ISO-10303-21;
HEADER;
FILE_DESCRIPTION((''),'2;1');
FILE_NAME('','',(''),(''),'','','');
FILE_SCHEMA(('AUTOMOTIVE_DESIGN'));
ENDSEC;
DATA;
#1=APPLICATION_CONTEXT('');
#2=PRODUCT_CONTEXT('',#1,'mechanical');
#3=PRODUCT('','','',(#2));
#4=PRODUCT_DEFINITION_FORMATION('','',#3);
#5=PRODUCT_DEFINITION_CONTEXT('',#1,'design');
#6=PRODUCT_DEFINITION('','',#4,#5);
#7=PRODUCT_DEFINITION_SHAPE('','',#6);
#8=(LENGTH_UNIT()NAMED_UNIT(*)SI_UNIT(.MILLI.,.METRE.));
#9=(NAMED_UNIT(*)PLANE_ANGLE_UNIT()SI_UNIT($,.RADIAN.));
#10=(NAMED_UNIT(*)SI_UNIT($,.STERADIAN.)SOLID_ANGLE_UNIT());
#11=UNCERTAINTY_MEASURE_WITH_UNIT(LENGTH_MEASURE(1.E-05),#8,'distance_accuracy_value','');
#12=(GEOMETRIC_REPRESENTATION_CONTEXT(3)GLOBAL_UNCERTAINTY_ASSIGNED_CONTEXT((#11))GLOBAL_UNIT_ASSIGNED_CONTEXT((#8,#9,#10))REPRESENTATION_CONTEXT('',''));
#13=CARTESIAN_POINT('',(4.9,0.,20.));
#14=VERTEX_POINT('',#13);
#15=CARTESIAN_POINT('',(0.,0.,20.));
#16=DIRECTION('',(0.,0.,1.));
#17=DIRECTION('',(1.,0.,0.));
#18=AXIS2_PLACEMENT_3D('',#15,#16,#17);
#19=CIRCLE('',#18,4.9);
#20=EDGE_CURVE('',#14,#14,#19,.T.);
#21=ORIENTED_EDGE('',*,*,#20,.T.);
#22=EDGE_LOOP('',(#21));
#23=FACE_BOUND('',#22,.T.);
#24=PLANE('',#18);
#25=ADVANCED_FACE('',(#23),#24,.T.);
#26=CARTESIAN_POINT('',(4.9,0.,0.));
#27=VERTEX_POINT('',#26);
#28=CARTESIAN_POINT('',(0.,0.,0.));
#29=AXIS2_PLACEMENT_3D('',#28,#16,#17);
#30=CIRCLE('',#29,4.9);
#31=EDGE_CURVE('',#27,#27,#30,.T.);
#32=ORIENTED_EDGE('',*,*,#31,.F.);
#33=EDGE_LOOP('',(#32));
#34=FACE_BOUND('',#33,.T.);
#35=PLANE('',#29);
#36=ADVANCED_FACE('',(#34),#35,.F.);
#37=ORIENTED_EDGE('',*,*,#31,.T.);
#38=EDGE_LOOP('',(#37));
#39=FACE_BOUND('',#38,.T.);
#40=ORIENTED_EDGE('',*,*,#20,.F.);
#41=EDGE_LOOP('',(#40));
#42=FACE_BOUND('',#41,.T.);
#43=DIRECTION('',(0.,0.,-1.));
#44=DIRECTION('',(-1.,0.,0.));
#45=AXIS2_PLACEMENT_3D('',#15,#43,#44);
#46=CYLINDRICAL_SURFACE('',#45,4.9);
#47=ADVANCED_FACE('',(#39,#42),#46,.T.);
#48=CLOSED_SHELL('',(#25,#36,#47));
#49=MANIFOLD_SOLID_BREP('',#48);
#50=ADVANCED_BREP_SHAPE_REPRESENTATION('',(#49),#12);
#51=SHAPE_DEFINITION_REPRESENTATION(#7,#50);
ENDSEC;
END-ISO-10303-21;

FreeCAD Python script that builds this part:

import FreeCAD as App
import Part
import Sketcher

doc = App.newDocument("Part")
params = doc.addObject("Spreadsheet::Sheet", "Params")
for row, (alias, value) in enumerate([
    ("sketch1_diameter", "9.8 mm"),
    ("pad1_length", "20 mm"),
], start=1):
    params.set(f"A{row}", alias)
    params.set(f"B{row}", "=" + value)
    params.setAlias(f"B{row}", alias)

body = doc.addObject("PartDesign::Body", "Body")

# Sketch on XY plane
sketch1 = doc.addObject("Sketcher::SketchObject", "Sketch")
body.addObject(sketch1)
sketch1.AttachmentSupport = (doc.XY_Plane, [""])
sketch1.MapMode = "FlatFace"
sketch1.addGeometry(Part.Circle(App.Vector(0, 0, 0), App.Vector(0, 0, 1), 4.9), False)
sketch1.addConstraint([
    Sketcher.Constraint("Coincident", 0, 3, -1, 1),
    Sketcher.Constraint("Diameter", 0, 9.8),
])
sketch1.setExpression("Constraints[1]", "Params.sketch1_diameter")
pad1 = doc.addObject("PartDesign::Pad", "Pad")
body.addObject(pad1)
pad1.Profile = sketch1
pad1.setExpression("Length", "Params.pad1_length")

doc.recompute()
